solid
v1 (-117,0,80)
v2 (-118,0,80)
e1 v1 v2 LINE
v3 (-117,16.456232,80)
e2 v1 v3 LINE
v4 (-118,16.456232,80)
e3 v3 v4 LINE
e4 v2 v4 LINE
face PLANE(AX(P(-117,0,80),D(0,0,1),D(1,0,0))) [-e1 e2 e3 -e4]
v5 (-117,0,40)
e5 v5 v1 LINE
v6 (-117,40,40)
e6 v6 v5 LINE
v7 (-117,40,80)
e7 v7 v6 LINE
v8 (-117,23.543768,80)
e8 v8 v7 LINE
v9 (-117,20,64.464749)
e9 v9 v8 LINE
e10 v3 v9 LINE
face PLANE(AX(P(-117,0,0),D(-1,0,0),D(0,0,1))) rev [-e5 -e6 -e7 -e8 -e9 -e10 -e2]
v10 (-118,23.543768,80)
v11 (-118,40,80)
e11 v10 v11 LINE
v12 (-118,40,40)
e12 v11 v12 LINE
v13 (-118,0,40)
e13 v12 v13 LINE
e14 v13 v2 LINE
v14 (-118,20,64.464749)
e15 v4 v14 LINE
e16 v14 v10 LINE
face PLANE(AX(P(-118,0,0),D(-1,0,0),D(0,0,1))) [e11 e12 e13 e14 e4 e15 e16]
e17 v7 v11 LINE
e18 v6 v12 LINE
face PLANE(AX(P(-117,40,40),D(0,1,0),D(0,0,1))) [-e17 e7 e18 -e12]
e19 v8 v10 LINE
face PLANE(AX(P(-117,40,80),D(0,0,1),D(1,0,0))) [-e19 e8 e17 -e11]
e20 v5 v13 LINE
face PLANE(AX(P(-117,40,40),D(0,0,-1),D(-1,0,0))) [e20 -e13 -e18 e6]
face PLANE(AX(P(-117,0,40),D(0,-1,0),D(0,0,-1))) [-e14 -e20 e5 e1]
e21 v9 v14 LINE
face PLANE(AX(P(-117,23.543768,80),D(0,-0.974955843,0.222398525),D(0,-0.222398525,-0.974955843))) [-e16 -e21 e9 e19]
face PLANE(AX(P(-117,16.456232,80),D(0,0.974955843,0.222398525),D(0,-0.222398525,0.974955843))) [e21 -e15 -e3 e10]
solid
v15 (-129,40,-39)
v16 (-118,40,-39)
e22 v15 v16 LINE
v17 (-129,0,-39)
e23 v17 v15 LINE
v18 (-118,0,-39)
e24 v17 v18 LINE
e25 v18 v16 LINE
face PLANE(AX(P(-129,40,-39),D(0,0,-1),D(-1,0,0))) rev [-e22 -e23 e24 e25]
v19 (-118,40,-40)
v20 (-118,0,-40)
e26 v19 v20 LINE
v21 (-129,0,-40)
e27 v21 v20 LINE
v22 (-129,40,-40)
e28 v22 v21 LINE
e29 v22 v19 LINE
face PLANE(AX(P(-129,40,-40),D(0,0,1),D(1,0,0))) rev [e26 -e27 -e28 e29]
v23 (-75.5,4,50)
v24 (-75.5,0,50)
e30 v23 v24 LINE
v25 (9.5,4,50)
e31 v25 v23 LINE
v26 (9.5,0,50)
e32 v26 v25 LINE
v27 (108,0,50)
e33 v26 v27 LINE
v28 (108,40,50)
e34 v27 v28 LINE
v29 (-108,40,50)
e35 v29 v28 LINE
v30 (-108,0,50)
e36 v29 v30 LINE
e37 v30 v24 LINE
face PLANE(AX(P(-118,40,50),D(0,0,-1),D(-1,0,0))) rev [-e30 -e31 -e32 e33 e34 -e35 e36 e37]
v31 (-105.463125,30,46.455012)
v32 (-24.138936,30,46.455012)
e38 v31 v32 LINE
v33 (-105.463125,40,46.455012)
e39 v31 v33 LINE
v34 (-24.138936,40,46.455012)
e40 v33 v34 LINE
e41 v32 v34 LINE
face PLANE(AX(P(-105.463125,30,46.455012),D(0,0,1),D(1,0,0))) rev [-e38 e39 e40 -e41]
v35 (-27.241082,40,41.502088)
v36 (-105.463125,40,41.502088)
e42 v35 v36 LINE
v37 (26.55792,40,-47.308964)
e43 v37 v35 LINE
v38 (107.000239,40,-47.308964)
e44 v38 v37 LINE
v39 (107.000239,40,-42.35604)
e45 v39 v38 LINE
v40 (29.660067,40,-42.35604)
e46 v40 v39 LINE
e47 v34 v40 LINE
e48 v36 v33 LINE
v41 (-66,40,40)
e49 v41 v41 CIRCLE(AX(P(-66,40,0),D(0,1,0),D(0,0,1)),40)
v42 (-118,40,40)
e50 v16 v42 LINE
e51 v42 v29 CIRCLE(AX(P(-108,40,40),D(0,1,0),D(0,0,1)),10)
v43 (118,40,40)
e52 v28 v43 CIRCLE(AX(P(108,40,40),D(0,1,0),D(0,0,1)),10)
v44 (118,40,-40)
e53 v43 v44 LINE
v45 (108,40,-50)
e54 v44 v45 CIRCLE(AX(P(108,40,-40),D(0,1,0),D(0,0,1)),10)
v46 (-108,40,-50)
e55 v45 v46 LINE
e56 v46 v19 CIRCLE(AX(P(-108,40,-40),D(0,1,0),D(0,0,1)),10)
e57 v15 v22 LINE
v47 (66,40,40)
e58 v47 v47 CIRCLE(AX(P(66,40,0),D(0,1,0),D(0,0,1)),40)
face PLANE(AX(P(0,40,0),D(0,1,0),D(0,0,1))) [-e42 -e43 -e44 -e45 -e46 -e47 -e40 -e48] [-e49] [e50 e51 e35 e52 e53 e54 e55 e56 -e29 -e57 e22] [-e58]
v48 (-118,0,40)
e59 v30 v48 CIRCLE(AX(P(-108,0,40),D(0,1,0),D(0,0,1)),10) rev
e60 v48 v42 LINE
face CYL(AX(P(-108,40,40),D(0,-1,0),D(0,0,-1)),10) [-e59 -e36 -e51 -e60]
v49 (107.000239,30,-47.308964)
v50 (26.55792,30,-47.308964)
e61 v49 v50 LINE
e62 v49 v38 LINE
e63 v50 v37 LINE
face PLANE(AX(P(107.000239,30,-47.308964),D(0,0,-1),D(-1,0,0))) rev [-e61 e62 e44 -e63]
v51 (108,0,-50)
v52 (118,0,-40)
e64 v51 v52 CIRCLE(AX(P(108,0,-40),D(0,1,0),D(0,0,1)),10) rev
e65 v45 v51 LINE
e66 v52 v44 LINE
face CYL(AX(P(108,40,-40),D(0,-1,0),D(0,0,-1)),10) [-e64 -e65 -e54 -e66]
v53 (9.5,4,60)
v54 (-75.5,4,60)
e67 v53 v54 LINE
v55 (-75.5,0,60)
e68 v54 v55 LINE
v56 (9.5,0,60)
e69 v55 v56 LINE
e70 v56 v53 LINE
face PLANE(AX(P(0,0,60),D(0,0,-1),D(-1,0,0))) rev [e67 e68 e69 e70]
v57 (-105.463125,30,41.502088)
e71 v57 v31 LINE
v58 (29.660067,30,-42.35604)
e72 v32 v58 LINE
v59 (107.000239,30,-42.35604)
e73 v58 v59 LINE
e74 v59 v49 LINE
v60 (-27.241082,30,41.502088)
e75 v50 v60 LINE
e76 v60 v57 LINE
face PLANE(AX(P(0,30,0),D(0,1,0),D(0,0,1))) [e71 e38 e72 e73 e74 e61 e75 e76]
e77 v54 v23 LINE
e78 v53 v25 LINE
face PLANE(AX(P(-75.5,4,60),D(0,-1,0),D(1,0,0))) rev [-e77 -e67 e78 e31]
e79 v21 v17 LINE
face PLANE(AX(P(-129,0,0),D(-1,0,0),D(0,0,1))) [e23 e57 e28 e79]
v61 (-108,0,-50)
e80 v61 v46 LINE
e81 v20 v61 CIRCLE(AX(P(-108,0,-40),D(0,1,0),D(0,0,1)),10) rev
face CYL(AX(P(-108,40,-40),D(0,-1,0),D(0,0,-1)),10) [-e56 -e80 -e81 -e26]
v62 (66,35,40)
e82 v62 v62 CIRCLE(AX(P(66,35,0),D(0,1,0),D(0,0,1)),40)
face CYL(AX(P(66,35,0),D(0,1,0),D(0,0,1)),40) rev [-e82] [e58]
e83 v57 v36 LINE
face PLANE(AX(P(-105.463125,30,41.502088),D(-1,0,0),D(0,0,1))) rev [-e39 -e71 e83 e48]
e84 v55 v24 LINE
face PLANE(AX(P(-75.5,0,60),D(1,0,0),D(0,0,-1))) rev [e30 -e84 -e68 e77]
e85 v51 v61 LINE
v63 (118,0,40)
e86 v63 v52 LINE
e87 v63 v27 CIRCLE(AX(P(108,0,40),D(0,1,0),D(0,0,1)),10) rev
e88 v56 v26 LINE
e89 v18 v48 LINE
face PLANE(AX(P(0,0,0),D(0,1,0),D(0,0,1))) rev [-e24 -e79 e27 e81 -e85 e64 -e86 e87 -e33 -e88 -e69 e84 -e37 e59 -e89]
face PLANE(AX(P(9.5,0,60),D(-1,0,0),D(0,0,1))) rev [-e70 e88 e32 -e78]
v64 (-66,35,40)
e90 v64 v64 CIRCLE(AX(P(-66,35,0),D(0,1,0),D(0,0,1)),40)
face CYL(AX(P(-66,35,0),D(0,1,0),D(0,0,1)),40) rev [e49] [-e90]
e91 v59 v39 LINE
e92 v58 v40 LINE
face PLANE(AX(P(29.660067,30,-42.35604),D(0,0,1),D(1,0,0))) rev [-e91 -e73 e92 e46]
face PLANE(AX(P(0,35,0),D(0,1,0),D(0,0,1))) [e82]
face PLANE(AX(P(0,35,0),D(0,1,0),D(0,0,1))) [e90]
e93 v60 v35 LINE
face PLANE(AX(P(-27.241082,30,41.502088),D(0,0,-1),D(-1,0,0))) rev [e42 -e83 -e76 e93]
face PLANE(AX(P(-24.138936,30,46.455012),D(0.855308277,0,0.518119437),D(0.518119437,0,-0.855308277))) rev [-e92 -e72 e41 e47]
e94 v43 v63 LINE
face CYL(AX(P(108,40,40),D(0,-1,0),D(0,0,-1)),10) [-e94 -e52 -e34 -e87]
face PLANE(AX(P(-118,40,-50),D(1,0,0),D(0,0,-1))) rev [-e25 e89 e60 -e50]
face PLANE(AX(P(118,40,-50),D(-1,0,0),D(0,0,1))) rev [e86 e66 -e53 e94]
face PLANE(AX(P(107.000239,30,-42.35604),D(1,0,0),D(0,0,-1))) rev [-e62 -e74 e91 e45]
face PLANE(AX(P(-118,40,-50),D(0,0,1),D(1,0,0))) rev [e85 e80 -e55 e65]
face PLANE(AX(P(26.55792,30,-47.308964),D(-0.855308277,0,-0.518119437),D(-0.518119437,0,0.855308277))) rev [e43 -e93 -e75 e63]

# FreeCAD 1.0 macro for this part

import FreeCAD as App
import Part
import Sketcher

V = App.Vector


def edges_at(feature, points):
    """Names of the edges that pass closest to the given points."""
    edges = feature.Shape.Edges
    near = lambda p: min(range(len(edges)), key=lambda i: edges[i].distToShape(Part.Vertex(*p))[0])
    return sorted({f"Edge{near(p) + 1}" for p in points})


def add_polygon(sketch, points):
    """Adds a closed chain of lines whose ends are joined by coincident constraints."""
    first, n = sketch.GeometryCount, len(points)
    for a, b in zip(points, points[1:] + points[:1]):
        sketch.addGeometry(Part.LineSegment(App.Vector(*a, 0), App.Vector(*b, 0)), False)
    for i in range(n):
        sketch.addConstraint(Sketcher.Constraint("Coincident", first + i, 2, first + (i + 1) % n, 1))

doc = App.newDocument("Part")
params = doc.addObject("Spreadsheet::Sheet", "Params")
for row, (alias, value) in enumerate([
    ("sketch1_width", "236 mm"),
    ("sketch1_height", "100 mm"),
    ("pad1_length", "40 mm"),
    ("sketch2_diameter", "80 mm"),
    ("pocket1_length", "5 mm"),
    ("fillet_radius", "10 mm"),
    ("pocket2_length", "10 mm"),
    ("sketch4_width", "85 mm"),
    ("sketch4_height", "4 mm"),
    ("pad2_length", "10 mm"),
    ("sketch5_width", "40 mm"),
    ("sketch5_height", "1 mm"),
    ("pad3_length", "11 mm"),
    ("sketch6_width", "40 mm"),
    ("pad4_length", "1 mm"),
], start=1):
    params.set(f"A{row}", alias)
    params.set(f"B{row}", "=" + value)
    params.setAlias(f"B{row}", alias)

body = doc.addObject("PartDesign::Body", "Body")

# Sketch on XZ plane
sketch1 = doc.addObject("Sketcher::SketchObject", "Sketch")
body.addObject(sketch1)
sketch1.AttachmentSupport = (doc.XZ_Plane, [""])
sketch1.MapMode = "FlatFace"
add_polygon(sketch1, [(-118, -50), (-118, 50), (118, 50), (118, -50)])  # lines 0-3
sketch1.addConstraint([
    Sketcher.Constraint("Vertical", 0),
    Sketcher.Constraint("Horizontal", 1),
    Sketcher.Constraint("Vertical", 2),
    Sketcher.Constraint("Horizontal", 3),
    Sketcher.Constraint("Symmetric", 0, 2, 2, 2, -1, 1),
    Sketcher.Constraint("DistanceX", 1, 1, 1, 2, 236.0),
    Sketcher.Constraint("DistanceY", 0, 1, 0, 2, 100.0),
])
sketch1.setExpression("Constraints[9]", "Params.sketch1_width")
sketch1.setExpression("Constraints[10]", "Params.sketch1_height")
pad1 = doc.addObject("PartDesign::Pad", "Pad")
body.addObject(pad1)
pad1.Profile = sketch1
pad1.setExpression("Length", "Params.pad1_length")
pad1.Reversed = True

# Sketch on XZ plane
sketch2 = doc.addObject("Sketcher::SketchObject", "Sketch001")
body.addObject(sketch2)
sketch2.AttachmentSupport = (doc.XZ_Plane, [""])
sketch2.MapMode = "FlatFace"
sketch2.AttachmentOffset = App.Placement(V(0, 0, -40), App.Rotation())
sketch2.addGeometry([
    Part.Circle(V(-66, 0, 0), V(0, 0, 1), 40),
    Part.Circle(V(66, 0, 0), V(0, 0, 1), 40),
], False)
sketch2.addConstraint([
    Sketcher.Constraint("Equal", 0, 1),
    Sketcher.Constraint("Symmetric", 0, 3, 1, 3, -1, 1),
    Sketcher.Constraint("PointOnObject", 0, 3, -1),
    Sketcher.Constraint("Diameter", 0, 80.0),
    Sketcher.Constraint("DistanceX", 0, 3, -1, 1, 66.0),
])
sketch2.setExpression("Constraints[3]", "Params.sketch2_diameter")
pocket1 = doc.addObject("PartDesign::Pocket", "Pocket")
body.addObject(pocket1)
pocket1.Profile = sketch2
pocket1.setExpression("Length", "Params.pocket1_length")
pocket1.Reversed = True
doc.recompute()

fillet = doc.addObject("PartDesign::Fillet", "Fillet")
body.addObject(fillet)
fillet.Base = (pocket1, edges_at(pocket1, [
    (118, 20, 50),
    (-118, 20, 50),
    (-118, 20, -50),
    (118, 20, -50),
]))
fillet.setExpression("Radius", "Params.fillet_radius")

# Sketch on XZ plane
sketch3 = doc.addObject("Sketcher::SketchObject", "Sketch002")
body.addObject(sketch3)
sketch3.AttachmentSupport = (doc.XZ_Plane, [""])
sketch3.MapMode = "FlatFace"
sketch3.AttachmentOffset = App.Placement(V(0, 0, -40), App.Rotation())
add_polygon(sketch3, [(-105.5, 41.5), (-105.5, 46.5), (-24.1, 46.5), (29.7, -42.4), (107, -42.4), (107, -47.3), (26.6, -47.3), (-27.2, 41.5)])  # lines 0-7
sketch3.addConstraint([
    Sketcher.Constraint("Vertical", 0),
    Sketcher.Constraint("Horizontal", 1),
    Sketcher.Constraint("Horizontal", 3),
    Sketcher.Constraint("Vertical", 4),
    Sketcher.Constraint("Horizontal", 5),
    Sketcher.Constraint("Horizontal", 7),
    Sketcher.Constraint("Parallel", 2, 6),
    Sketcher.Constraint("Equal", 0, 4),
    Sketcher.Constraint("DistanceX", 1, 1, 1, 2, 81.324189),
    Sketcher.Constraint("DistanceX", 5, 2, 5, 1, 80.442319),
    Sketcher.Constraint("DistanceX", 3, 1, 3, 2, 77.340172),
    Sketcher.Constraint("DistanceY", 0, 1, 0, 2, 4.952924),
    Sketcher.Constraint("DistanceY", 2, 2, -1, 1, 42.35604),
    Sketcher.Constraint("DistanceX", -1, 1, 3, 2, 107.000239),
    Sketcher.Constraint("DistanceX", 0, 2, 2, 2, 135.123192),
    Sketcher.Constraint("DistanceY", 2, 2, 6, 2, 83.858128),
])
pocket2 = doc.addObject("PartDesign::Pocket", "Pocket001")
body.addObject(pocket2)
pocket2.Profile = sketch3
pocket2.setExpression("Length", "Params.pocket2_length")
pocket2.Reversed = True

# Sketch on XY plane
sketch4 = doc.addObject("Sketcher::SketchObject", "Sketch003")
body.addObject(sketch4)
sketch4.AttachmentSupport = (doc.XY_Plane, [""])
sketch4.MapMode = "FlatFace"
sketch4.AttachmentOffset = App.Placement(V(0, 0, 50), App.Rotation())
add_polygon(sketch4, [(-75.5, 4), (-75.5, 0), (9.5, 0), (9.5, 4)])  # lines 0-3
sketch4.addConstraint([
    Sketcher.Constraint("Vertical", 0),
    Sketcher.Constraint("Horizontal", 1),
    Sketcher.Constraint("Vertical", 2),
    Sketcher.Constraint("Horizontal", 3),
    Sketcher.Constraint("PointOnObject", 0, 2, -1),
    Sketcher.Constraint("DistanceX", 1, 1, 1, 2, 85.0),
    Sketcher.Constraint("DistanceY", 0, 2, 0, 1, 4.0),
    Sketcher.Constraint("DistanceX", 0, 2, -1, 1, 75.5),
])
sketch4.setExpression("Constraints[9]", "Params.sketch4_width")
sketch4.setExpression("Constraints[10]", "Params.sketch4_height")
pad2 = doc.addObject("PartDesign::Pad", "Pad001")
body.addObject(pad2)
pad2.Profile = sketch4
pad2.setExpression("Length", "Params.pad2_length")

# Sketch on YZ plane
sketch5 = doc.addObject("Sketcher::SketchObject", "Sketch004")
body.addObject(sketch5)
sketch5.AttachmentSupport = (doc.YZ_Plane, [""])
sketch5.MapMode = "FlatFace"
sketch5.AttachmentOffset = App.Placement(V(0, 0, -118), App.Rotation())
add_polygon(sketch5, [(40, -40), (0, -40), (0, -39), (40, -39)])  # lines 0-3
sketch5.addConstraint([
    Sketcher.Constraint("Horizontal", 0),
    Sketcher.Constraint("Vertical", 1),
    Sketcher.Constraint("Horizontal", 2),
    Sketcher.Constraint("Vertical", 3),
    Sketcher.Constraint("PointOnObject", 0, 2, -2),
    Sketcher.Constraint("DistanceX", 0, 2, 0, 1, 40.0),
    Sketcher.Constraint("DistanceY", 1, 1, 1, 2, 1.0),
    Sketcher.Constraint("DistanceY", 0, 2, -1, 1, 40.0),
])
sketch5.setExpression("Constraints[9]", "Params.sketch5_width")
sketch5.setExpression("Constraints[10]", "Params.sketch5_height")
pad3 = doc.addObject("PartDesign::Pad", "Pad002")
body.addObject(pad3)
pad3.Profile = sketch5
pad3.setExpression("Length", "Params.pad3_length")
pad3.Reversed = True
body2 = doc.addObject("PartDesign::Body", "Body001")

# Sketch on YZ plane
sketch6 = doc.addObject("Sketcher::SketchObject", "Sketch005")
body2.addObject(sketch6)
sketch6.AttachmentSupport = (doc.getObject("YZ_Plane001"), [""])
sketch6.MapMode = "FlatFace"
sketch6.AttachmentOffset = App.Placement(V(0, 0, -118), App.Rotation())
add_polygon(sketch6, [(40, 80), (40, 40), (0, 40), (0, 80), (16, 80), (20, 64), (24, 80)])  # lines 0-6
sketch6.addConstraint([
    Sketcher.Constraint("Vertical", 0),
    Sketcher.Constraint("Horizontal", 1),
    Sketcher.Constraint("Vertical", 2),
    Sketcher.Constraint("Horizontal", 3),
    Sketcher.Constraint("Horizontal", 6),
    Sketcher.Constraint("PointOnObject", 1, 2, -2),
    Sketcher.Constraint("Horizontal", 3, 2, 5, 2),
    Sketcher.Constraint("Equal", 3, 6),
    Sketcher.Constraint("Equal", 1, 0),
    Sketcher.Constraint("Equal", 4, 5),
    Sketcher.Constraint("DistanceX", 1, 2, 1, 1, 40.0),
    Sketcher.Constraint("DistanceY", -1, 1, 0, 2, 40.0),
    Sketcher.Constraint("DistanceX", 3, 1, 3, 2, 16.456232),
    Sketcher.Constraint("DistanceY", -1, 1, 4, 2, 64.464749),
])
sketch6.setExpression("Constraints[17]", "Params.sketch6_width")
pad4 = doc.addObject("PartDesign::Pad", "Pad003")
body2.addObject(pad4)
pad4.Profile = sketch6
pad4.setExpression("Length", "Params.pad4_length")

doc.recompute()
